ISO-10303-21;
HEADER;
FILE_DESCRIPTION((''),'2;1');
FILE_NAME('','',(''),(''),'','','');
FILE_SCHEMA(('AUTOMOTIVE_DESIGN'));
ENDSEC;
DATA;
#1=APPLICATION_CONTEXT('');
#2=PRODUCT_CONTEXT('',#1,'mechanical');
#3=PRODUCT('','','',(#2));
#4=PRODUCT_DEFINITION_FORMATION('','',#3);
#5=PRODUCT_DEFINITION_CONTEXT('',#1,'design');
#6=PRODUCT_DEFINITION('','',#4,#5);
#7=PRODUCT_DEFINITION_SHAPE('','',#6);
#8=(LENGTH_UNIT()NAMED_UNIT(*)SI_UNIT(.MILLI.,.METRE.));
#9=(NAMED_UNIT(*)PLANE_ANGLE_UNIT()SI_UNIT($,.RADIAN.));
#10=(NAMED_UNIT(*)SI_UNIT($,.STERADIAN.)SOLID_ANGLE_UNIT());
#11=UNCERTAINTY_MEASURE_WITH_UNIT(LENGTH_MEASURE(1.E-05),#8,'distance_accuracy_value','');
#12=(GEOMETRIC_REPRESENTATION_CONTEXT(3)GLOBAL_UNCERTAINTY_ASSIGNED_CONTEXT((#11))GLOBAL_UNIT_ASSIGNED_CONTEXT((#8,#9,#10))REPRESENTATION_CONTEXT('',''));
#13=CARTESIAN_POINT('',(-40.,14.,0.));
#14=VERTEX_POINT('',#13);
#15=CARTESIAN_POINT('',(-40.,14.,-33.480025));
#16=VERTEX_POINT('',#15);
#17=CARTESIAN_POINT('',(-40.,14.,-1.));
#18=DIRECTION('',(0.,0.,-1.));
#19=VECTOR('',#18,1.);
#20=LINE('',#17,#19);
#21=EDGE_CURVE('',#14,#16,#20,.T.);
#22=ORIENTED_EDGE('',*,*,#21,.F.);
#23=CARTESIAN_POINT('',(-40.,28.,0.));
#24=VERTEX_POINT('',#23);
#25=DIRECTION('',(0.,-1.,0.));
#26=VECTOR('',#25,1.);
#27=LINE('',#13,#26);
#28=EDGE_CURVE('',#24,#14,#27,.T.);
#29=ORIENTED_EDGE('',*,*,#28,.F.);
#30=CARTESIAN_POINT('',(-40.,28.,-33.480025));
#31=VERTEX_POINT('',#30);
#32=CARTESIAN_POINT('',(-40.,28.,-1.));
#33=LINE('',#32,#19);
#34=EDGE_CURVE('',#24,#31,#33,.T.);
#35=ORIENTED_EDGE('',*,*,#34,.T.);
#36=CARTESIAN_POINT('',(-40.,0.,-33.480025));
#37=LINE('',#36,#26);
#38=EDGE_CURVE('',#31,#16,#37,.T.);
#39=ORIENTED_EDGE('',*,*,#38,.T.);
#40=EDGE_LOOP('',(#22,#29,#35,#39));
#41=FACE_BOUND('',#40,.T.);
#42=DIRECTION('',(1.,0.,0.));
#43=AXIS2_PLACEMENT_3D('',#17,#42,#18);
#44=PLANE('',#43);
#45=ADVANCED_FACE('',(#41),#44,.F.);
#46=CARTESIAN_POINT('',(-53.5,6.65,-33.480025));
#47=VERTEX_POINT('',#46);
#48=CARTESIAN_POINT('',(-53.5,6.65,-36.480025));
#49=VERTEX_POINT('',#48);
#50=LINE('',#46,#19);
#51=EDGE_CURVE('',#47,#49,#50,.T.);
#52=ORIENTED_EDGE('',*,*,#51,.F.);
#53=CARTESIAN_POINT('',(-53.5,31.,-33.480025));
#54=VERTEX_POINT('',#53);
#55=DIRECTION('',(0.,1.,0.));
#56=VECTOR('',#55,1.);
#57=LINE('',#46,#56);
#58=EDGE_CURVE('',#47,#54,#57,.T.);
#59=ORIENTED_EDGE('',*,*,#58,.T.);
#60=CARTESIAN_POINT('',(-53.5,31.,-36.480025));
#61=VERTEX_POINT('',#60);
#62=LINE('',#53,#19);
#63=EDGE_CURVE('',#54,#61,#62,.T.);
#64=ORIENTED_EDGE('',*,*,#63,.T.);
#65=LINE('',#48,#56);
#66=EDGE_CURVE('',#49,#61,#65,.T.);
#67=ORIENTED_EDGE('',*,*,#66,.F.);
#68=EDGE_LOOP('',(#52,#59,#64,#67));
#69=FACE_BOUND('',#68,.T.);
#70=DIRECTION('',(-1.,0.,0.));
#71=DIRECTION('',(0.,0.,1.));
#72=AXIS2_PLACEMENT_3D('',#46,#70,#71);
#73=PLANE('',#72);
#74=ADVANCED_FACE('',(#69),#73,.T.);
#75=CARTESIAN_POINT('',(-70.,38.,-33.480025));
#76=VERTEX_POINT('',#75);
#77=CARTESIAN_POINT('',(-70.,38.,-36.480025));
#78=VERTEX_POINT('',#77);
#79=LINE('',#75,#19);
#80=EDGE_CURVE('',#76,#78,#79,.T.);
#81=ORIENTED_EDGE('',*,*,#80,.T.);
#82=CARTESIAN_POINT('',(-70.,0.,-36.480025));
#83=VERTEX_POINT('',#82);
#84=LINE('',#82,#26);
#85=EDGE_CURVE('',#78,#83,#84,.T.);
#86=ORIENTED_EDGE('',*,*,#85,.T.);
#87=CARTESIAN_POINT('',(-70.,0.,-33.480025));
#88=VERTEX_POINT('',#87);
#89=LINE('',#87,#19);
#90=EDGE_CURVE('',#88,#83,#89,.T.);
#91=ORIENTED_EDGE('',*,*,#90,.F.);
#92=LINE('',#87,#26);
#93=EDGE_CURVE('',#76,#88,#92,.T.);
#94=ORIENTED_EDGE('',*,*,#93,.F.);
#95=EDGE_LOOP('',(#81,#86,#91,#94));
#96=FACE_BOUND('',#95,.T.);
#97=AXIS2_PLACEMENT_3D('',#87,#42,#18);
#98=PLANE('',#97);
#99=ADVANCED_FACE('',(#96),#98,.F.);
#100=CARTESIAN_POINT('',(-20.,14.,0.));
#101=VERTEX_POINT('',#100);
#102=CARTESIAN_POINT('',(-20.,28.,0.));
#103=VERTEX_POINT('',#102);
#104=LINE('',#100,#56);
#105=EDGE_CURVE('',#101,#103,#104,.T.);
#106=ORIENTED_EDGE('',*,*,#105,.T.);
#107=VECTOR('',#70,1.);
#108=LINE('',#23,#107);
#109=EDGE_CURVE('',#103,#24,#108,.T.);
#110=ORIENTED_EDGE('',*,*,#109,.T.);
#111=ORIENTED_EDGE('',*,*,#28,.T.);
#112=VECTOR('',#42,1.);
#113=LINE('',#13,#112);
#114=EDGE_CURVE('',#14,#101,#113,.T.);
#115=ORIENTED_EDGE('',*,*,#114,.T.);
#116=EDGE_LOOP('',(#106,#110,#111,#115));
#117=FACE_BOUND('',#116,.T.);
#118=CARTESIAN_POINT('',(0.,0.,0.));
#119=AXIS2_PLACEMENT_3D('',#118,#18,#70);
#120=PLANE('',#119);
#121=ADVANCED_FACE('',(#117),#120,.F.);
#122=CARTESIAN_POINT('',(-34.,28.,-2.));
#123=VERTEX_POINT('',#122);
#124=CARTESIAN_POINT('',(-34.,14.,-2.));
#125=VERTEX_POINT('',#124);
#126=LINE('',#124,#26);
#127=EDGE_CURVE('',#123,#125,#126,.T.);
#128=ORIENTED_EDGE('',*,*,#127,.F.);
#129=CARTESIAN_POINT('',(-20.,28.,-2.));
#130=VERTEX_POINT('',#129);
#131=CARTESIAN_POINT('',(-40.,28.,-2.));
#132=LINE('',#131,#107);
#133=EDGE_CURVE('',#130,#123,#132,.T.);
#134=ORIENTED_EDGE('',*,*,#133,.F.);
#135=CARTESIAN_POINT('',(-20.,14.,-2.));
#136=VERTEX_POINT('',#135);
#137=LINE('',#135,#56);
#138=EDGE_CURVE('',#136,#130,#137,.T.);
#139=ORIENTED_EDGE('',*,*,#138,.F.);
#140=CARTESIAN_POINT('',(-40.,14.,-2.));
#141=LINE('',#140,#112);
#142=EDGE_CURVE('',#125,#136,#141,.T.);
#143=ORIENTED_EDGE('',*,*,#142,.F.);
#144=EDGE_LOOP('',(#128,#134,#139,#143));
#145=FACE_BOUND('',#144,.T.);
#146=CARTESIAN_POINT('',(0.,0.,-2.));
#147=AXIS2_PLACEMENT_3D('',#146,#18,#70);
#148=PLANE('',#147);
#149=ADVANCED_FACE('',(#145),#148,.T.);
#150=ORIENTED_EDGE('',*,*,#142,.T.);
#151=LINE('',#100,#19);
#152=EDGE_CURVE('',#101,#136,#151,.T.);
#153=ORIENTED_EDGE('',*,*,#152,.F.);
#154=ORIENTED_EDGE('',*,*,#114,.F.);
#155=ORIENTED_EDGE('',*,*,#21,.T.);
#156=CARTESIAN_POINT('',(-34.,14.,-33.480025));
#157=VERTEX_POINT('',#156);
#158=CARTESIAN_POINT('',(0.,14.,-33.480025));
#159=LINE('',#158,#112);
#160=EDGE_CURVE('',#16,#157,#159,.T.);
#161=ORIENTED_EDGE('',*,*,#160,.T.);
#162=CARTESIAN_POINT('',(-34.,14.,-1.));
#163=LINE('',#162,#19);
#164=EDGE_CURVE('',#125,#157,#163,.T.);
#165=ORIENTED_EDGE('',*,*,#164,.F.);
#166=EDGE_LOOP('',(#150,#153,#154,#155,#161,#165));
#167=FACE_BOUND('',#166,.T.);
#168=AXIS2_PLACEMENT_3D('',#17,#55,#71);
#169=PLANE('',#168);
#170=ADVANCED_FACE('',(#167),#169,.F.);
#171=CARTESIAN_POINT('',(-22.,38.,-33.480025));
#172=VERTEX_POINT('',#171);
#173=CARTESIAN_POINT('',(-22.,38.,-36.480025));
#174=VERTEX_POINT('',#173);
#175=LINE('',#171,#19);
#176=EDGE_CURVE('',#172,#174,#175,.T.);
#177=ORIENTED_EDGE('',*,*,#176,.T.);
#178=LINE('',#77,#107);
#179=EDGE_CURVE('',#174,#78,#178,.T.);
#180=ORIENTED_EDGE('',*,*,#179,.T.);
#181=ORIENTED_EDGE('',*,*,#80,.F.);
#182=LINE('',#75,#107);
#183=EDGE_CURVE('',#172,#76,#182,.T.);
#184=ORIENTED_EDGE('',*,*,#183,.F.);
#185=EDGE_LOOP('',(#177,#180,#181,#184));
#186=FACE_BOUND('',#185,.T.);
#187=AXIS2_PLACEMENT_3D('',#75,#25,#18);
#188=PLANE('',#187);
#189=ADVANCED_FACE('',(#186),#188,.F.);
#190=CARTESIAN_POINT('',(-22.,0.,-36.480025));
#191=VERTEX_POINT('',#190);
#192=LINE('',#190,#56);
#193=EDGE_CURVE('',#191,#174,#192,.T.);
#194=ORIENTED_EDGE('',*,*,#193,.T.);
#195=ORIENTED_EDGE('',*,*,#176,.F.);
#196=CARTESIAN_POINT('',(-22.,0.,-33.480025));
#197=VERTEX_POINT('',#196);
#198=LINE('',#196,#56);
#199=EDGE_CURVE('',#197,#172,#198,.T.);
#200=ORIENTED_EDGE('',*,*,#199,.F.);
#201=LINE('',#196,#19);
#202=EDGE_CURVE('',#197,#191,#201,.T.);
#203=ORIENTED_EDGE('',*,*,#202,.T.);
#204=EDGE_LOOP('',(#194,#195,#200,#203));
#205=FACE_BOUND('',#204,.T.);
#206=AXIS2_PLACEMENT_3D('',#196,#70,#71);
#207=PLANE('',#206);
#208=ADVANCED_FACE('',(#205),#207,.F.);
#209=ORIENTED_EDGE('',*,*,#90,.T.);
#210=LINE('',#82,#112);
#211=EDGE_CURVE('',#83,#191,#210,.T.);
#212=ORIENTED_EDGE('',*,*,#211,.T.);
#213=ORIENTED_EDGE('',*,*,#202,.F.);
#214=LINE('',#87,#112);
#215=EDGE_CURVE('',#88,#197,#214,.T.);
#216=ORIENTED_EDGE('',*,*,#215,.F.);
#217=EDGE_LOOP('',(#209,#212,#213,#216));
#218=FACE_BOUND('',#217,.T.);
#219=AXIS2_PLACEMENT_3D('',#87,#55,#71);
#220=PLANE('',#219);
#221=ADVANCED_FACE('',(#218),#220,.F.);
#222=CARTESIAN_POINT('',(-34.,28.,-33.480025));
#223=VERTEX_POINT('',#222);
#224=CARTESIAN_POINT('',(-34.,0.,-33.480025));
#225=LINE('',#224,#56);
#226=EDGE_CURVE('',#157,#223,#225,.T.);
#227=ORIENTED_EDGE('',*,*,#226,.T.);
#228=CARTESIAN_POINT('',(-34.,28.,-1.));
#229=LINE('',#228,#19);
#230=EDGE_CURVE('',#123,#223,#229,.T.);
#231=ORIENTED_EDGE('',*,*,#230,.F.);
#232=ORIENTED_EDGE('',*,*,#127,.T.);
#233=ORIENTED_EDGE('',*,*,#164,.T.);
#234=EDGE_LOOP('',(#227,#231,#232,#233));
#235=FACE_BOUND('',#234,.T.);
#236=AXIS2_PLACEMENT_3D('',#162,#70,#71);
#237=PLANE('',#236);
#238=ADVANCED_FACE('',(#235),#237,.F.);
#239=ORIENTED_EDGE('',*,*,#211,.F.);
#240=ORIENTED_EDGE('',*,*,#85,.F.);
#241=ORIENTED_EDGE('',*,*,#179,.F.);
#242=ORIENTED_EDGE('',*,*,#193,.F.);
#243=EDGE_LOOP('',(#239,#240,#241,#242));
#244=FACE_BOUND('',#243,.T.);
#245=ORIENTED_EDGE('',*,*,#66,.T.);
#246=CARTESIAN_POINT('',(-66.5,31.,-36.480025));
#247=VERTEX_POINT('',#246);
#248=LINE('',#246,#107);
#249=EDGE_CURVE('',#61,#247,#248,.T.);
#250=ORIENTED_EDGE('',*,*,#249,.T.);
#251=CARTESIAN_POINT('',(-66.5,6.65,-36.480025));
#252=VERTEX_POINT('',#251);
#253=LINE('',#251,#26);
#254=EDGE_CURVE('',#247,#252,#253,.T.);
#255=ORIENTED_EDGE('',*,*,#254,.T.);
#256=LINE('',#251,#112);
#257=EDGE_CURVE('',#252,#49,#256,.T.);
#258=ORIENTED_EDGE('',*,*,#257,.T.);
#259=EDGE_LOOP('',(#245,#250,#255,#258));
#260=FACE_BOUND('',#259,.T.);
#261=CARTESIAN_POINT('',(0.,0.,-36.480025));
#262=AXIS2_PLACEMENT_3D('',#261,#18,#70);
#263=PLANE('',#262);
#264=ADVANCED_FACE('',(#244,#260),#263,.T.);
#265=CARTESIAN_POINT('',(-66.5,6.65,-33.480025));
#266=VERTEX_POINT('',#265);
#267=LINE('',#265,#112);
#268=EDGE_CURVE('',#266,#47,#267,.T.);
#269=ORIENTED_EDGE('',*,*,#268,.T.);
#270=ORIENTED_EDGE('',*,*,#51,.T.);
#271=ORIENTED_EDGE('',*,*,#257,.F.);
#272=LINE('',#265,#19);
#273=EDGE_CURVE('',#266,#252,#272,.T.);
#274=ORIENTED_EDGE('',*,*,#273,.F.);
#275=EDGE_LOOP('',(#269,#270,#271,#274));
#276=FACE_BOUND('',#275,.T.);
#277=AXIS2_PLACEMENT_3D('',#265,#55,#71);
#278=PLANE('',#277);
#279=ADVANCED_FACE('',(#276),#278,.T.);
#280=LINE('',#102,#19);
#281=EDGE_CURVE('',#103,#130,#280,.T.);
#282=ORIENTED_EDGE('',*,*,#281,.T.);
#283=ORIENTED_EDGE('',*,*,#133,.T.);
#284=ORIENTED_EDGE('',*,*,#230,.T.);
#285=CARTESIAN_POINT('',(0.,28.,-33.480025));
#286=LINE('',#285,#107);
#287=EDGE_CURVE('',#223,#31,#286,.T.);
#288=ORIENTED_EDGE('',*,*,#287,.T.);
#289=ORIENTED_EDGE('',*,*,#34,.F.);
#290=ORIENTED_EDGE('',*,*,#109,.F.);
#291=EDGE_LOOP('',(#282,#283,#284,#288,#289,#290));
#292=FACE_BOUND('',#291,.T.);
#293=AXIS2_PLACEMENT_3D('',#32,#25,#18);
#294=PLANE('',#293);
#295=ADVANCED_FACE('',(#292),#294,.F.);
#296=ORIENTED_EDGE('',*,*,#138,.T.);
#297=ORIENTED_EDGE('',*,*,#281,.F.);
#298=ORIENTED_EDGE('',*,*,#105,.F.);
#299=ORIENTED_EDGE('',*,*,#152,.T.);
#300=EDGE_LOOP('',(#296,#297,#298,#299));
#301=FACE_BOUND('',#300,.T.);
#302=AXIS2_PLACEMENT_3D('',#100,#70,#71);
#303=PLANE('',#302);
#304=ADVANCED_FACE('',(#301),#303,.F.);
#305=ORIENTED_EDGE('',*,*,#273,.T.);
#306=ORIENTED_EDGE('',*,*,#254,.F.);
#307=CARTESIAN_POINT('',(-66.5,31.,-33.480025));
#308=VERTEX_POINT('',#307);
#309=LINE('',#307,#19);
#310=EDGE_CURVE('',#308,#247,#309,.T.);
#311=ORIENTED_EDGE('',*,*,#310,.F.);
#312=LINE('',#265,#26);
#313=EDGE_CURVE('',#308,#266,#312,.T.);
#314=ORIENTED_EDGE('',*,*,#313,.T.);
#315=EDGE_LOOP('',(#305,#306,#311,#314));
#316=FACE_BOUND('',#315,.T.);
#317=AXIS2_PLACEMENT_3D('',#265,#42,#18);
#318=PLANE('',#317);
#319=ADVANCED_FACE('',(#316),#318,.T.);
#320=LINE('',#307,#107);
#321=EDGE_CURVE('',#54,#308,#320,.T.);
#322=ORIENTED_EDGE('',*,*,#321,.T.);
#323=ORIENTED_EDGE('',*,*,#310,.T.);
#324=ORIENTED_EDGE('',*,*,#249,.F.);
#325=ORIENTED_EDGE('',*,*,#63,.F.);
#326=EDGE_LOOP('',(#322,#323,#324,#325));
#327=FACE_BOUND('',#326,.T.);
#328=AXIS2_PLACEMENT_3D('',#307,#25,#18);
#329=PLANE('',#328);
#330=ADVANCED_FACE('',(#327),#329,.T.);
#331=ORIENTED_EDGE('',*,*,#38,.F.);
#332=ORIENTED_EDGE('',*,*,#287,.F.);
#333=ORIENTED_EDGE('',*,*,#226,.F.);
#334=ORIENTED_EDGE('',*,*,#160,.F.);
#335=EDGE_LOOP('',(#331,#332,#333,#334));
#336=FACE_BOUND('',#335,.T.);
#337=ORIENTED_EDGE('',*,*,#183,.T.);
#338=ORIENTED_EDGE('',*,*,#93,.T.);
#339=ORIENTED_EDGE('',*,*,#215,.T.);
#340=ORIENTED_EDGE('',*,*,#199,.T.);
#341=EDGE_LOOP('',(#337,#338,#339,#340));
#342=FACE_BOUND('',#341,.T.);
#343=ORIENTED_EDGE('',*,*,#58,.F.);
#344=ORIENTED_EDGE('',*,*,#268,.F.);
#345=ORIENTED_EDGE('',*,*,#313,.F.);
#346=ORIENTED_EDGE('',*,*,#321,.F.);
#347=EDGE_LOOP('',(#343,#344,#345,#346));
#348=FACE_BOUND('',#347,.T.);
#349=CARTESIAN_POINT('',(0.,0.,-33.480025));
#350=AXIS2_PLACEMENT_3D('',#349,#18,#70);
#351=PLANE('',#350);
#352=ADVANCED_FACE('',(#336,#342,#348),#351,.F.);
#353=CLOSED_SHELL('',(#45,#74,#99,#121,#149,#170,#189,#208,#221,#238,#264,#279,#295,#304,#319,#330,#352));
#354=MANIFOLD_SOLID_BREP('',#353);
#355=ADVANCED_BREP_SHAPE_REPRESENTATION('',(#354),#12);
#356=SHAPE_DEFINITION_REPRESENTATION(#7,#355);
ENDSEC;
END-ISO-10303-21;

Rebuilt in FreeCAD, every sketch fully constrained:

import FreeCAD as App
import Part
import Sketcher
Q = App.Units.Quantity

doc = App.newDocument("Part")
body = doc.addObject("PartDesign::Body", "Body")

sketch1 = body.newObject("Sketcher::SketchObject", "Sketch")
sketch1.AttachmentSupport = (doc.getObject("XY_Plane"), [""])
sketch1.MapMode = "FlatFace"
sketch1.AttachmentOffset = App.Placement(App.Vector(0, 0, -36.480025), App.Rotation())
sketch1.addGeometry([
    Part.LineSegment(App.Vector(-70, 38, 0), App.Vector(-70, 0, 0)),
    Part.LineSegment(App.Vector(-70, 0, 0), App.Vector(-22, 0, 0)),
    Part.LineSegment(App.Vector(-22, 0, 0), App.Vector(-22, 38, 0)),
    Part.LineSegment(App.Vector(-22, 38, 0), App.Vector(-70, 38, 0)),
    Part.LineSegment(App.Vector(-54, 7, 0), App.Vector(-66, 7, 0)),
    Part.LineSegment(App.Vector(-66, 7, 0), App.Vector(-66, 31, 0)),
    Part.LineSegment(App.Vector(-66, 31, 0), App.Vector(-54, 31, 0)),
    Part.LineSegment(App.Vector(-54, 31, 0), App.Vector(-54, 7, 0)),
], False)
sketch1.addConstraint([
    Sketcher.Constraint("Coincident", 0, 2, 1, 1),
    Sketcher.Constraint("Coincident", 1, 2, 2, 1),
    Sketcher.Constraint("Coincident", 2, 2, 3, 1),
    Sketcher.Constraint("Coincident", 3, 2, 0, 1),
    Sketcher.Constraint("Coincident", 4, 2, 5, 1),
    Sketcher.Constraint("Coincident", 5, 2, 6, 1),
    Sketcher.Constraint("Coincident", 6, 2, 7, 1),
    Sketcher.Constraint("Coincident", 7, 2, 4, 1),
    Sketcher.Constraint("Vertical", 0),
    Sketcher.Constraint("Horizontal", 1),
    Sketcher.Constraint("Vertical", 2),
    Sketcher.Constraint("Horizontal", 3),
    Sketcher.Constraint("Horizontal", 4),
    Sketcher.Constraint("Vertical", 5),
    Sketcher.Constraint("Horizontal", 6),
    Sketcher.Constraint("Vertical", 7),
    Sketcher.Constraint("PointOnObject", 0, 2, -1),
    Sketcher.Constraint("DistanceX", 1, 1, 1, 2, Q("48 mm")),
    Sketcher.Constraint("DistanceX", 4, 2, 4, 1, Q("13 mm")),
    Sketcher.Constraint("DistanceY", 0, 2, 0, 1, Q("38 mm")),
    Sketcher.Constraint("DistanceX", 0, 2, -1, 1, Q("70 mm")),
    Sketcher.Constraint("DistanceY", -1, 1, 5, 2, Q("31 mm")),
    Sketcher.Constraint("DistanceY", 5, 1, 5, 2, Q("24.35 mm")),
    Sketcher.Constraint("DistanceX", 4, 2, -1, 1, Q("66.5 mm")),
])
pad1 = body.newObject("PartDesign::Pad", "Pad")
pad1.Profile = sketch1
pad1.Length = 3

sketch2 = body.newObject("Sketcher::SketchObject", "Sketch001")
sketch2.AttachmentSupport = (doc.getObject("XY_Plane"), [""])
sketch2.MapMode = "FlatFace"
sketch2.AttachmentOffset = App.Placement(App.Vector(0, 0, -34.480025), App.Rotation())
sketch2.addGeometry([
    Part.LineSegment(App.Vector(-40, 28, 0), App.Vector(-40, 14, 0)),
    Part.LineSegment(App.Vector(-40, 14, 0), App.Vector(-34, 14, 0)),
    Part.LineSegment(App.Vector(-34, 14, 0), App.Vector(-34, 28, 0)),
    Part.LineSegment(App.Vector(-34, 28, 0), App.Vector(-40, 28, 0)),
], False)
sketch2.addConstraint([
    Sketcher.Constraint("Coincident", 0, 2, 1, 1),
    Sketcher.Constraint("Coincident", 1, 2, 2, 1),
    Sketcher.Constraint("Coincident", 2, 2, 3, 1),
    Sketcher.Constraint("Coincident", 3, 2, 0, 1),
    Sketcher.Constraint("Vertical", 0),
    Sketcher.Constraint("Horizontal", 1),
    Sketcher.Constraint("Vertical", 2),
    Sketcher.Constraint("Horizontal", 3),
    Sketcher.Constraint("DistanceX", 1, 1, 1, 2, Q("6 mm")),
    Sketcher.Constraint("DistanceY", 0, 2, 0, 1, Q("14 mm")),
    Sketcher.Constraint("DistanceX", 0, 2, -1, 1, Q("40 mm")),
    Sketcher.Constraint("DistanceY", -1, 1, 0, 2, Q("14 mm")),
])
pad2 = body.newObject("PartDesign::Pad", "Pad001")
pad2.Profile = sketch2
pad2.Length = 33.480025

sketch3 = body.newObject("Sketcher::SketchObject", "Sketch002")
sketch3.AttachmentSupport = (doc.getObject("XY_Plane"), [""])
sketch3.MapMode = "FlatFace"
sketch3.AttachmentOffset = App.Placement(App.Vector(0, 0, -2), App.Rotation())
sketch3.addGeometry([
    Part.LineSegment(App.Vector(-40, 28, 0), App.Vector(-40, 14, 0)),
    Part.LineSegment(App.Vector(-40, 14, 0), App.Vector(-20, 14, 0)),
    Part.LineSegment(App.Vector(-20, 14, 0), App.Vector(-20, 28, 0)),
    Part.LineSegment(App.Vector(-20, 28, 0), App.Vector(-40, 28, 0)),
], False)
sketch3.addConstraint([
    Sketcher.Constraint("Coincident", 0, 2, 1, 1),
    Sketcher.Constraint("Coincident", 1, 2, 2, 1),
    Sketcher.Constraint("Coincident", 2, 2, 3, 1),
    Sketcher.Constraint("Coincident", 3, 2, 0, 1),
    Sketcher.Constraint("Vertical", 0),
    Sketcher.Constraint("Horizontal", 1),
    Sketcher.Constraint("Vertical", 2),
    Sketcher.Constraint("Horizontal", 3),
    Sketcher.Constraint("DistanceX", 1, 1, 1, 2, Q("20 mm")),
    Sketcher.Constraint("DistanceY", 0, 2, 0, 1, Q("14 mm")),
    Sketcher.Constraint("DistanceX", 0, 2, -1, 1, Q("40 mm")),
    Sketcher.Constraint("DistanceY", -1, 1, 0, 2, Q("14 mm")),
])
pad3 = body.newObject("PartDesign::Pad", "Pad002")
pad3.Profile = sketch3
pad3.Length = 2

doc.recompute()
